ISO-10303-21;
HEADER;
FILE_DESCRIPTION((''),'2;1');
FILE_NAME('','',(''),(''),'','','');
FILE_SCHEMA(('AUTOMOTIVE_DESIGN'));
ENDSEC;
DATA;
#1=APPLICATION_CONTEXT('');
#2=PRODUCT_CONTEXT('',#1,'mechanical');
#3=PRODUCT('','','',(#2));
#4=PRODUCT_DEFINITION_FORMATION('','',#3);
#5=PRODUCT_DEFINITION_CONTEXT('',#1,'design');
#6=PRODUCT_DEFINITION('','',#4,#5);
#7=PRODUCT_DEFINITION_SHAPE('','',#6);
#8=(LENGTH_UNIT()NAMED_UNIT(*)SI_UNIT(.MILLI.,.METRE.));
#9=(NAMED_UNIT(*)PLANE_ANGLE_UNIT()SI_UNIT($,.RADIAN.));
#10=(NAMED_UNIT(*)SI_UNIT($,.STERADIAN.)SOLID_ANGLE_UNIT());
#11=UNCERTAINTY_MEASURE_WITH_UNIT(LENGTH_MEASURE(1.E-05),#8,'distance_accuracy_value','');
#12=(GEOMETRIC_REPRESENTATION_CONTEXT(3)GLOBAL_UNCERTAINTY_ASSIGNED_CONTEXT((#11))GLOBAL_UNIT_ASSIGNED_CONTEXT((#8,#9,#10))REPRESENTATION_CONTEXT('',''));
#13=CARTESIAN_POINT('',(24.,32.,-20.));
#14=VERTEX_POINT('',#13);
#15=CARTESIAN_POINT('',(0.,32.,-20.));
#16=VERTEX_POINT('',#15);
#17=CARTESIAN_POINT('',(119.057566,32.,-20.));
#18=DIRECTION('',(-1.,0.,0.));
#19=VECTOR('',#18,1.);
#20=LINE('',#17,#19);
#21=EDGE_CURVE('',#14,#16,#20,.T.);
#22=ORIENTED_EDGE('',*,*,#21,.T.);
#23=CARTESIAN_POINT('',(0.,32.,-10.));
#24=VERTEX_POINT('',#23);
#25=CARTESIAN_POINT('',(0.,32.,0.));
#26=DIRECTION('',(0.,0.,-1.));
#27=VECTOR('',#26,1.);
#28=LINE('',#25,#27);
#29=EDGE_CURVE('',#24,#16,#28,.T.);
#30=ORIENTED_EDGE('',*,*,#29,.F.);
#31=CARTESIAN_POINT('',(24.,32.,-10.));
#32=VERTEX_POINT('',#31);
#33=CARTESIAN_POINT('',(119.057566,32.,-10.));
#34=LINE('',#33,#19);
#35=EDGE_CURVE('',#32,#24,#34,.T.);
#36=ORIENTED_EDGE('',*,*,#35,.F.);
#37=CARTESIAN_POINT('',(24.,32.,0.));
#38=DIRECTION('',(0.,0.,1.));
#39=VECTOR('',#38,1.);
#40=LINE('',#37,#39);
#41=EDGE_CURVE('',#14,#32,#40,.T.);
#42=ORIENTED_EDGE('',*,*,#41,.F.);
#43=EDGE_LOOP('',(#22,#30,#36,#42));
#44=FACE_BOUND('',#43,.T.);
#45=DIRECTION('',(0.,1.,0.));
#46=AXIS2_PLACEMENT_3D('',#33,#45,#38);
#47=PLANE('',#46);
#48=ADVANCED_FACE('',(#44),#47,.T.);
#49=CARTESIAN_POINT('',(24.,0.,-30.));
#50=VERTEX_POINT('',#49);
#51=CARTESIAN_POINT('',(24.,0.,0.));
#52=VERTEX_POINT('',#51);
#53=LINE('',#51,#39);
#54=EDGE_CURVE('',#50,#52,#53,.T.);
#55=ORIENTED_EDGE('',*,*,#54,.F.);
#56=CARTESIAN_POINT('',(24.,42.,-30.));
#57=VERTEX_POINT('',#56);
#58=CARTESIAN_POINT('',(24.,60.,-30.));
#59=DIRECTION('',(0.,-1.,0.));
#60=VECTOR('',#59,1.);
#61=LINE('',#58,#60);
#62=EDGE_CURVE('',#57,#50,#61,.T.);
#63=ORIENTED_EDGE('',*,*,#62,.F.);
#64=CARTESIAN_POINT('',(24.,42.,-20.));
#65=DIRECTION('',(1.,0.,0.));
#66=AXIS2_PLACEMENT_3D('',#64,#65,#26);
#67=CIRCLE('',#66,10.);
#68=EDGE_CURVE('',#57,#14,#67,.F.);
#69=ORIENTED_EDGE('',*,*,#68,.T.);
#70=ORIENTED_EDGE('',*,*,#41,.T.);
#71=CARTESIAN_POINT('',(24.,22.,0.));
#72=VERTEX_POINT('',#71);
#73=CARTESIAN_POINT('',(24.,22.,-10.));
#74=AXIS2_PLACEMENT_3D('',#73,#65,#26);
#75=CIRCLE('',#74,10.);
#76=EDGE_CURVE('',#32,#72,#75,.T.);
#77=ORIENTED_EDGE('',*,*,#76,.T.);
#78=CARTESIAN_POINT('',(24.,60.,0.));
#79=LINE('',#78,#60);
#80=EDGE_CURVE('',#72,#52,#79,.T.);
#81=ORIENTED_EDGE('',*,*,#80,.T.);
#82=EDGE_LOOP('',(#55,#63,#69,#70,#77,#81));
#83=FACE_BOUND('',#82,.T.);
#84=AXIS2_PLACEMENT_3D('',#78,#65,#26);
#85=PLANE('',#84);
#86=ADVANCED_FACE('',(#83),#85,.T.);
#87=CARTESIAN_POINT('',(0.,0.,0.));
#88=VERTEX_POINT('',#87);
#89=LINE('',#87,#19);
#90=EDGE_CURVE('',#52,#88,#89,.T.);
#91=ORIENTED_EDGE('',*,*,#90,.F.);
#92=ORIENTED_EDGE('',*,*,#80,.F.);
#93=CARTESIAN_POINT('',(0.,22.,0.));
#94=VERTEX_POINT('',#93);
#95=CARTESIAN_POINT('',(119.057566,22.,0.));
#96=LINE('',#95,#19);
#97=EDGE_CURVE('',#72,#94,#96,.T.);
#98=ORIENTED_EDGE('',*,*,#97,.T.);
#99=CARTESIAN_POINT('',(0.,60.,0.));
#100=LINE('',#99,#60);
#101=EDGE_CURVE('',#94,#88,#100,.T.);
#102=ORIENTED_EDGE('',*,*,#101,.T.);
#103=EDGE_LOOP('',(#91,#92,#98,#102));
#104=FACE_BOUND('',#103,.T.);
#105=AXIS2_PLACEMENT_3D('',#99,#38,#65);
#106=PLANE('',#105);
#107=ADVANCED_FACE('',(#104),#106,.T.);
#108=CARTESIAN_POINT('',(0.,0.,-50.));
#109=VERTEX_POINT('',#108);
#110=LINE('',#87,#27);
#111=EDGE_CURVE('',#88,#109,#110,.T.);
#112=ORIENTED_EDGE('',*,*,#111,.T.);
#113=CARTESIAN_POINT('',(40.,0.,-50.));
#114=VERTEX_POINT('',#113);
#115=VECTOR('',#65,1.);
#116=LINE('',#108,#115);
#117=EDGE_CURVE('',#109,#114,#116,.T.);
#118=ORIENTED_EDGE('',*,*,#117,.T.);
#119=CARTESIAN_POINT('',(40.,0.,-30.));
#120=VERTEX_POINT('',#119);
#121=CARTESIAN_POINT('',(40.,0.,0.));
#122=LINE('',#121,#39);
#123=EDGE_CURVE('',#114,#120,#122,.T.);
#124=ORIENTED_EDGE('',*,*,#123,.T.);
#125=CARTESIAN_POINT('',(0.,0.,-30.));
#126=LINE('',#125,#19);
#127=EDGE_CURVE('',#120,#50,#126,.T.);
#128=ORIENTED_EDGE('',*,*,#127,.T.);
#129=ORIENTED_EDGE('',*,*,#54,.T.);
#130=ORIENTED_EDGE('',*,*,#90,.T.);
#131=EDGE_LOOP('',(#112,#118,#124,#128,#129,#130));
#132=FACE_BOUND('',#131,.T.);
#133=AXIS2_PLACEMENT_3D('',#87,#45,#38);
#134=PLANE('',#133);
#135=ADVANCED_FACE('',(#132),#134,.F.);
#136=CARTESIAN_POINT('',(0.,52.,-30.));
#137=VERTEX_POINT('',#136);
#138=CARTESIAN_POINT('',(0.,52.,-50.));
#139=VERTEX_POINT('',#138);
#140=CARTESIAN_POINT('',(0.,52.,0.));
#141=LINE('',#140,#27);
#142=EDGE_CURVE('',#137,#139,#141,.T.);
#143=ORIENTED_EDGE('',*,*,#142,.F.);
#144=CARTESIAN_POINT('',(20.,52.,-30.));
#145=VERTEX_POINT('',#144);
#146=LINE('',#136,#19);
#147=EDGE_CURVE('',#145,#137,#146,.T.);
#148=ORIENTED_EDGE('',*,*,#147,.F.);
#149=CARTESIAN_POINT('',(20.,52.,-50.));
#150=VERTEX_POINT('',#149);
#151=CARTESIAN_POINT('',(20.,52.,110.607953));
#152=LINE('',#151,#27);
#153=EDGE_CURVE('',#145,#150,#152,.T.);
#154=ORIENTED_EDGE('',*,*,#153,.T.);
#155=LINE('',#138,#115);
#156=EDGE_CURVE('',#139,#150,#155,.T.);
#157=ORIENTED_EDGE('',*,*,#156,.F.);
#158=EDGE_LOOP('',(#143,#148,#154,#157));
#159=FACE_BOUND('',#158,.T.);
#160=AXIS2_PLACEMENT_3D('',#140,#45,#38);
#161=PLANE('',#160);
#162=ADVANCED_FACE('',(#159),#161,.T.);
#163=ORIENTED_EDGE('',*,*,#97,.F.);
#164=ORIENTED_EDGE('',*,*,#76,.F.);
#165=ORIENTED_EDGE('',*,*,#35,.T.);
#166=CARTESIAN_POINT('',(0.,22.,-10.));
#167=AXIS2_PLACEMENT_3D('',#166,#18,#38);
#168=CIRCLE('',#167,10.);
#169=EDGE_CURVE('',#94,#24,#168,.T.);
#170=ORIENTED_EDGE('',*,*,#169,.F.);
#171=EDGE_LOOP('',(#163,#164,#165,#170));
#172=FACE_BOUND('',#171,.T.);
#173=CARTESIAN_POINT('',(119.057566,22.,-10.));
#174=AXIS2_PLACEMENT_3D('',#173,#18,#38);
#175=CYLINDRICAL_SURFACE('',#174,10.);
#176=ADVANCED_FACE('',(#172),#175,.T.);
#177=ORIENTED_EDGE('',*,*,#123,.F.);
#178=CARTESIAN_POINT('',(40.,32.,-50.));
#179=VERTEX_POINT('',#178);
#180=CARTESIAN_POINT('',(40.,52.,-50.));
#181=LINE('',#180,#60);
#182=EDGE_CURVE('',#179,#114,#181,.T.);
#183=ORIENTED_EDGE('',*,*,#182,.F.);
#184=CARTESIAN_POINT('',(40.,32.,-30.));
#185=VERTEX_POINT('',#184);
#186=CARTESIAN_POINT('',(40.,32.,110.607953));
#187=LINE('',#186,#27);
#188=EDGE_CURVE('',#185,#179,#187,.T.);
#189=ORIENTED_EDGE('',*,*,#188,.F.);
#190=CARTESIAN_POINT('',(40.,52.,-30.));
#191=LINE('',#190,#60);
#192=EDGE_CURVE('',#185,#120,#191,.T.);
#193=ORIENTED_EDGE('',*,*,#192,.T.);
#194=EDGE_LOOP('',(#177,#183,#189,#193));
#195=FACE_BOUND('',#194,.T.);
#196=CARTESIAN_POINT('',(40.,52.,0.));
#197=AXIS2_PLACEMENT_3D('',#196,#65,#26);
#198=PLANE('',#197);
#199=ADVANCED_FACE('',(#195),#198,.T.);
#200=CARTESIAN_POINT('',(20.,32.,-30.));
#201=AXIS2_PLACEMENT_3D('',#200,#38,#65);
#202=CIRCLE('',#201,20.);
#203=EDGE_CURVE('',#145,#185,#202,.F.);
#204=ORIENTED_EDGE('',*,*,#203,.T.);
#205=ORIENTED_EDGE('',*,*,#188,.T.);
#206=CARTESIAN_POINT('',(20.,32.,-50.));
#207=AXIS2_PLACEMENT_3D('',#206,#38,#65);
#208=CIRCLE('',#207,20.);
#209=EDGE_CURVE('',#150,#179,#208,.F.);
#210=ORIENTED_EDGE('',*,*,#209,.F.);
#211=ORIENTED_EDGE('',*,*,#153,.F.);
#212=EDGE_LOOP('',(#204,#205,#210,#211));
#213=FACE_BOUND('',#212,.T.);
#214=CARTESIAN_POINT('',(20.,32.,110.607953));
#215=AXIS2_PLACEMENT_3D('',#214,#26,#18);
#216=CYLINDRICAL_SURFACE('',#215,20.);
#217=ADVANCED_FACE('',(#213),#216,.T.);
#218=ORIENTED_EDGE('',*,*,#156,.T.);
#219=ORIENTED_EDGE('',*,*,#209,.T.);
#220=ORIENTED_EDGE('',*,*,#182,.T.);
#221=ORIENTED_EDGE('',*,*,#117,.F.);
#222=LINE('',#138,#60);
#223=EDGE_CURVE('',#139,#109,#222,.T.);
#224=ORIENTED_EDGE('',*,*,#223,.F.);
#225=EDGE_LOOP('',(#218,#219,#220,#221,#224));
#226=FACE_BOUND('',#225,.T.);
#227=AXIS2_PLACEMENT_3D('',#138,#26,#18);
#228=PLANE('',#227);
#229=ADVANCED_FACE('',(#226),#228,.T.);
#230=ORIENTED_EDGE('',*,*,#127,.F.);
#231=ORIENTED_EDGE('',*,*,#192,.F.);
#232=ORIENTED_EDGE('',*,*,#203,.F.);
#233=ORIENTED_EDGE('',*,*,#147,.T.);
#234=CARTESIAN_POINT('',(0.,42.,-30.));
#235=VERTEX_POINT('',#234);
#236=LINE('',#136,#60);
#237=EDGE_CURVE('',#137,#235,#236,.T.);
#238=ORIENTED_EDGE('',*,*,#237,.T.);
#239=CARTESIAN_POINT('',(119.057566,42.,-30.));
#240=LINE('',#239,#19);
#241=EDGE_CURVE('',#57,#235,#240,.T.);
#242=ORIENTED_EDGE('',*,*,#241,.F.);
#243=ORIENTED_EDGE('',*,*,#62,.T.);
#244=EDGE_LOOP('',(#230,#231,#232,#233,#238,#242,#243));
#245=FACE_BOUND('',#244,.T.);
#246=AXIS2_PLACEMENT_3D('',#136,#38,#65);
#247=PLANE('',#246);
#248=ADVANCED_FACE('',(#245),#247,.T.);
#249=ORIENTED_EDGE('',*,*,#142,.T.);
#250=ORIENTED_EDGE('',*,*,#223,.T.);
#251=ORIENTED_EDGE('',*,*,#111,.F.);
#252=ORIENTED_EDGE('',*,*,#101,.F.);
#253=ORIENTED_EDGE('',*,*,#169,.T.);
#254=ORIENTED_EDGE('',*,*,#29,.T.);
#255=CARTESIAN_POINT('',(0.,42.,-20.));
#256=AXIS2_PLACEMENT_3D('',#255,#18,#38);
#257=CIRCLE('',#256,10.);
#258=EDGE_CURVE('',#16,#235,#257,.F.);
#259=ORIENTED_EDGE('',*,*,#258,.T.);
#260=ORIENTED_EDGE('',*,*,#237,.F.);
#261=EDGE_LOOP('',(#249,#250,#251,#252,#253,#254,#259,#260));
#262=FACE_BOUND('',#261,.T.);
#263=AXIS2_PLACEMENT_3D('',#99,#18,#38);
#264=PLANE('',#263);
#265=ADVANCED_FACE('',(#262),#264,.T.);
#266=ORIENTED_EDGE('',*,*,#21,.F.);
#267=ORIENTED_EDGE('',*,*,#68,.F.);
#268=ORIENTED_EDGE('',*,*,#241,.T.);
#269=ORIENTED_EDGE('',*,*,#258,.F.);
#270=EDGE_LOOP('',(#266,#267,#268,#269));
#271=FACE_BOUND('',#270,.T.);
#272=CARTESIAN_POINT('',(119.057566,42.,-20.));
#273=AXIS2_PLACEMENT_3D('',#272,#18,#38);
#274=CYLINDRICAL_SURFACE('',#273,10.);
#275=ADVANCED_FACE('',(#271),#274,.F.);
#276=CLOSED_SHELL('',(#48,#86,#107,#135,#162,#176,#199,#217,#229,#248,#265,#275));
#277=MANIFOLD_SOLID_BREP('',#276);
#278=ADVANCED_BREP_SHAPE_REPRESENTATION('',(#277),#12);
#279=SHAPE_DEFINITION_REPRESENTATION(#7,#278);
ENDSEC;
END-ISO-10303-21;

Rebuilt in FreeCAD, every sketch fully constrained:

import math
import FreeCAD as App
import Part
import Sketcher

V = App.Vector
Q = App.Units.Quantity


def add_polygon(sketch, points):
    """Adds a closed chain of lines whose ends are joined by coincident constraints."""
    first, n = sketch.GeometryCount, len(points)
    for a, b in zip(points, points[1:] + points[:1]):
        sketch.addGeometry(Part.LineSegment(App.Vector(*a, 0), App.Vector(*b, 0)), False)
    for i in range(n):
        sketch.addConstraint(Sketcher.Constraint("Coincident", first + i, 2, first + (i + 1) % n, 1))

doc = App.newDocument("Part")
params = doc.addObject("Spreadsheet::Sheet", "Params")
for row, (alias, value) in enumerate([
    ("sketch1_width", "24 mm"),
    ("sketch1_height", "30 mm"),
    ("pad1_length", "60 mm"),
    ("sketch2_radius", "10 mm"),
    ("sketch2_width", "38 mm"),
    ("sketch2_height", "10 mm"),
    ("sketch3_width", "40 mm"),
    ("sketch3_height", "20 mm"),
    ("pad2_length", "52 mm"),
    ("sketch4_radius", "20 mm"),
], start=1):
    params.set(f"A{row}", alias)
    params.set(f"B{row}", "=" + value)
    params.setAlias(f"B{row}", alias)

body = doc.addObject("PartDesign::Body", "Body")

# Sketch on XZ plane
sketch1 = body.newObject("Sketcher::SketchObject", "Sketch")
sketch1.AttachmentSupport = (doc.getObject("XZ_Plane"), [""])
sketch1.MapMode = "FlatFace"
add_polygon(sketch1, [(0, -30), (0, 0), (24, 0), (24, -30)])  # lines 0-3
sketch1.addConstraint(Sketcher.Constraint("Vertical", 0))
sketch1.addConstraint(Sketcher.Constraint("Horizontal", 1))
sketch1.addConstraint(Sketcher.Constraint("Vertical", 2))
sketch1.addConstraint(Sketcher.Constraint("Horizontal", 3))
sketch1.addConstraint(Sketcher.Constraint("Coincident", 0, 2, -1, 1))
sketch1.addConstraint(Sketcher.Constraint("DistanceX", 1, 1, 1, 2, Q("24 mm")))
sketch1.addConstraint(Sketcher.Constraint("DistanceY", 0, 1, 0, 2, Q("30 mm")))
sketch1.setExpression("Constraints[9]", "Params.sketch1_width")
sketch1.setExpression("Constraints[10]", "Params.sketch1_height")
pad1 = body.newObject("PartDesign::Pad", "Pad")
pad1.Profile = sketch1
pad1.setExpression("Length", "Params.pad1_length")
pad1.Reversed = True

# Sketch on YZ plane
sketch2 = body.newObject("Sketcher::SketchObject", "Sketch001")
sketch2.AttachmentSupport = (doc.getObject("YZ_Plane"), [""])
sketch2.MapMode = "FlatFace"
sketch2.addGeometry(Part.LineSegment(V(60, 0, 0), V(22, 0, 0)), False)
sketch2.addGeometry(Part.ArcOfCircle(Part.Circle(V(22, -10, 0), V(0, 0, 1), 10), math.radians(0), math.radians(90)), False)
sketch2.addGeometry(Part.LineSegment(V(32, -10, 0), V(32, -20, 0)), False)
sketch2.addGeometry(Part.ArcOfCircle(Part.Circle(V(42, -20, 0), V(0, 0, 1), 10), math.radians(180), math.radians(270)), False)
sketch2.addGeometry(Part.LineSegment(V(42, -30, 0), V(60, -30, 0)), False)
sketch2.addGeometry(Part.LineSegment(V(60, -30, 0), V(60, 0, 0)), False)
sketch2.addConstraint(Sketcher.Constraint("Tangent", 0, 2, 1, 2))
sketch2.addConstraint(Sketcher.Constraint("Tangent", 1, 1, 2, 1))
sketch2.addConstraint(Sketcher.Constraint("Tangent", 2, 2, 3, 1))
sketch2.addConstraint(Sketcher.Constraint("Tangent", 3, 2, 4, 1))
sketch2.addConstraint(Sketcher.Constraint("Coincident", 4, 2, 5, 1))
sketch2.addConstraint(Sketcher.Constraint("Coincident", 5, 2, 0, 1))
sketch2.addConstraint(Sketcher.Constraint("Horizontal", 0))
sketch2.addConstraint(Sketcher.Constraint("Vertical", 2))
sketch2.addConstraint(Sketcher.Constraint("Horizontal", 4))
sketch2.addConstraint(Sketcher.Constraint("Vertical", 5))
sketch2.addConstraint(Sketcher.Constraint("Equal", 1, 3))
sketch2.addConstraint(Sketcher.Constraint("PointOnObject", 0, 2, -1))
sketch2.addConstraint(Sketcher.Constraint("Radius", 1, Q("10 mm")))
sketch2.addConstraint(Sketcher.Constraint("DistanceX", 0, 2, 0, 1, Q("38 mm")))
sketch2.addConstraint(Sketcher.Constraint("DistanceY", 2, 2, 2, 1, Q("10 mm")))
sketch2.addConstraint(Sketcher.Constraint("DistanceX", -1, 1, 1, 3, Q("22 mm")))
sketch2.setExpression("Constraints[12]", "Params.sketch2_radius")
sketch2.setExpression("Constraints[13]", "Params.sketch2_width")
sketch2.setExpression("Constraints[14]", "Params.sketch2_height")
pocket1 = body.newObject("PartDesign::Pocket", "Pocket")
pocket1.Profile = sketch2
pocket1.Type = "ThroughAll"
pocket1.Midplane = True

# Sketch on XZ plane
sketch3 = body.newObject("Sketcher::SketchObject", "Sketch002")
sketch3.AttachmentSupport = (doc.getObject("XZ_Plane"), [""])
sketch3.MapMode = "FlatFace"
add_polygon(sketch3, [(0, -50), (0, -30), (40, -30), (40, -50)])  # lines 0-3
sketch3.addConstraint(Sketcher.Constraint("Vertical", 0))
sketch3.addConstraint(Sketcher.Constraint("Horizontal", 1))
sketch3.addConstraint(Sketcher.Constraint("Vertical", 2))
sketch3.addConstraint(Sketcher.Constraint("Horizontal", 3))
sketch3.addConstraint(Sketcher.Constraint("PointOnObject", 0, 2, -2))
sketch3.addConstraint(Sketcher.Constraint("DistanceX", 1, 1, 1, 2, Q("40 mm")))
sketch3.addConstraint(Sketcher.Constraint("DistanceY", 0, 1, 0, 2, Q("20 mm")))
sketch3.addConstraint(Sketcher.Constraint("DistanceY", 0, 2, -1, 1, Q("30 mm")))
sketch3.setExpression("Constraints[9]", "Params.sketch3_width")
sketch3.setExpression("Constraints[10]", "Params.sketch3_height")
pad2 = body.newObject("PartDesign::Pad", "Pad001")
pad2.Profile = sketch3
pad2.setExpression("Length", "Params.pad2_length")
pad2.Reversed = True

# Sketch on XY plane
sketch4 = body.newObject("Sketcher::SketchObject", "Sketch003")
sketch4.AttachmentSupport = (doc.getObject("XY_Plane"), [""])
sketch4.MapMode = "FlatFace"
sketch4.AttachmentOffset = App.Placement(V(0, 0, -30), App.Rotation())
sketch4.addGeometry(Part.LineSegment(V(-101, 52, 0), V(20, 52, 0)), False)
sketch4.addGeometry(Part.ArcOfCircle(Part.Circle(V(20, 32, 0), V(0, 0, 1), 20), math.radians(0), math.radians(90)), False)
sketch4.addGeometry(Part.LineSegment(V(40, 32, 0), V(40, -89, 0)), False)
sketch4.addGeometry(Part.LineSegment(V(40, -89, 0), V(212, 82, 0)), False)
sketch4.addGeometry(Part.LineSegment(V(212, 82, 0), V(70, 224, 0)), False)
sketch4.addGeometry(Part.LineSegment(V(70, 224, 0), V(-101, 52, 0)), False)
sketch4.addConstraint(Sketcher.Constraint("Tangent", 0, 2, 1, 2))
sketch4.addConstraint(Sketcher.Constraint("Tangent", 1, 1, 2, 1))
sketch4.addConstraint(Sketcher.Constraint("Coincident", 2, 2, 3, 1))
sketch4.addConstraint(Sketcher.Constraint("Coincident", 3, 2, 4, 1))
sketch4.addConstraint(Sketcher.Constraint("Coincident", 4, 2, 5, 1))
sketch4.addConstraint(Sketcher.Constraint("Coincident", 5, 2, 0, 1))
sketch4.addConstraint(Sketcher.Constraint("Horizontal", 0))
sketch4.addConstraint(Sketcher.Constraint("Vertical", 2))
sketch4.addConstraint(Sketcher.Constraint("Perpendicular", 3, 4))
sketch4.addConstraint(Sketcher.Constraint("Perpendicular", 4, 5))
sketch4.addConstraint(Sketcher.Constraint("Equal", 0, 2))
sketch4.addConstraint(Sketcher.Constraint("Equal", 3, 5))
sketch4.addConstraint(Sketcher.Constraint("Radius", 1, Q("20 mm")))
sketch4.addConstraint(Sketcher.Constraint("DistanceX", -1, 1, 1, 3, Q("20 mm")))
sketch4.addConstraint(Sketcher.Constraint("DistanceY", -1, 1, 1, 3, Q("32 mm")))
sketch4.addConstraint(Sketcher.Constraint("Distance", 4, Q("200.008132 mm")))
sketch4.addConstraint(Sketcher.Constraint("DistanceX", -1, 1, 3, 2, Q("211.72386 mm")))
sketch4.setExpression("Constraints[12]", "Params.sketch4_radius")
pocket2 = body.newObject("PartDesign::Pocket", "Pocket001")
pocket2.Profile = sketch4
pocket2.Type = "ThroughAll"
pocket2.Midplane = True

doc.recompute()
